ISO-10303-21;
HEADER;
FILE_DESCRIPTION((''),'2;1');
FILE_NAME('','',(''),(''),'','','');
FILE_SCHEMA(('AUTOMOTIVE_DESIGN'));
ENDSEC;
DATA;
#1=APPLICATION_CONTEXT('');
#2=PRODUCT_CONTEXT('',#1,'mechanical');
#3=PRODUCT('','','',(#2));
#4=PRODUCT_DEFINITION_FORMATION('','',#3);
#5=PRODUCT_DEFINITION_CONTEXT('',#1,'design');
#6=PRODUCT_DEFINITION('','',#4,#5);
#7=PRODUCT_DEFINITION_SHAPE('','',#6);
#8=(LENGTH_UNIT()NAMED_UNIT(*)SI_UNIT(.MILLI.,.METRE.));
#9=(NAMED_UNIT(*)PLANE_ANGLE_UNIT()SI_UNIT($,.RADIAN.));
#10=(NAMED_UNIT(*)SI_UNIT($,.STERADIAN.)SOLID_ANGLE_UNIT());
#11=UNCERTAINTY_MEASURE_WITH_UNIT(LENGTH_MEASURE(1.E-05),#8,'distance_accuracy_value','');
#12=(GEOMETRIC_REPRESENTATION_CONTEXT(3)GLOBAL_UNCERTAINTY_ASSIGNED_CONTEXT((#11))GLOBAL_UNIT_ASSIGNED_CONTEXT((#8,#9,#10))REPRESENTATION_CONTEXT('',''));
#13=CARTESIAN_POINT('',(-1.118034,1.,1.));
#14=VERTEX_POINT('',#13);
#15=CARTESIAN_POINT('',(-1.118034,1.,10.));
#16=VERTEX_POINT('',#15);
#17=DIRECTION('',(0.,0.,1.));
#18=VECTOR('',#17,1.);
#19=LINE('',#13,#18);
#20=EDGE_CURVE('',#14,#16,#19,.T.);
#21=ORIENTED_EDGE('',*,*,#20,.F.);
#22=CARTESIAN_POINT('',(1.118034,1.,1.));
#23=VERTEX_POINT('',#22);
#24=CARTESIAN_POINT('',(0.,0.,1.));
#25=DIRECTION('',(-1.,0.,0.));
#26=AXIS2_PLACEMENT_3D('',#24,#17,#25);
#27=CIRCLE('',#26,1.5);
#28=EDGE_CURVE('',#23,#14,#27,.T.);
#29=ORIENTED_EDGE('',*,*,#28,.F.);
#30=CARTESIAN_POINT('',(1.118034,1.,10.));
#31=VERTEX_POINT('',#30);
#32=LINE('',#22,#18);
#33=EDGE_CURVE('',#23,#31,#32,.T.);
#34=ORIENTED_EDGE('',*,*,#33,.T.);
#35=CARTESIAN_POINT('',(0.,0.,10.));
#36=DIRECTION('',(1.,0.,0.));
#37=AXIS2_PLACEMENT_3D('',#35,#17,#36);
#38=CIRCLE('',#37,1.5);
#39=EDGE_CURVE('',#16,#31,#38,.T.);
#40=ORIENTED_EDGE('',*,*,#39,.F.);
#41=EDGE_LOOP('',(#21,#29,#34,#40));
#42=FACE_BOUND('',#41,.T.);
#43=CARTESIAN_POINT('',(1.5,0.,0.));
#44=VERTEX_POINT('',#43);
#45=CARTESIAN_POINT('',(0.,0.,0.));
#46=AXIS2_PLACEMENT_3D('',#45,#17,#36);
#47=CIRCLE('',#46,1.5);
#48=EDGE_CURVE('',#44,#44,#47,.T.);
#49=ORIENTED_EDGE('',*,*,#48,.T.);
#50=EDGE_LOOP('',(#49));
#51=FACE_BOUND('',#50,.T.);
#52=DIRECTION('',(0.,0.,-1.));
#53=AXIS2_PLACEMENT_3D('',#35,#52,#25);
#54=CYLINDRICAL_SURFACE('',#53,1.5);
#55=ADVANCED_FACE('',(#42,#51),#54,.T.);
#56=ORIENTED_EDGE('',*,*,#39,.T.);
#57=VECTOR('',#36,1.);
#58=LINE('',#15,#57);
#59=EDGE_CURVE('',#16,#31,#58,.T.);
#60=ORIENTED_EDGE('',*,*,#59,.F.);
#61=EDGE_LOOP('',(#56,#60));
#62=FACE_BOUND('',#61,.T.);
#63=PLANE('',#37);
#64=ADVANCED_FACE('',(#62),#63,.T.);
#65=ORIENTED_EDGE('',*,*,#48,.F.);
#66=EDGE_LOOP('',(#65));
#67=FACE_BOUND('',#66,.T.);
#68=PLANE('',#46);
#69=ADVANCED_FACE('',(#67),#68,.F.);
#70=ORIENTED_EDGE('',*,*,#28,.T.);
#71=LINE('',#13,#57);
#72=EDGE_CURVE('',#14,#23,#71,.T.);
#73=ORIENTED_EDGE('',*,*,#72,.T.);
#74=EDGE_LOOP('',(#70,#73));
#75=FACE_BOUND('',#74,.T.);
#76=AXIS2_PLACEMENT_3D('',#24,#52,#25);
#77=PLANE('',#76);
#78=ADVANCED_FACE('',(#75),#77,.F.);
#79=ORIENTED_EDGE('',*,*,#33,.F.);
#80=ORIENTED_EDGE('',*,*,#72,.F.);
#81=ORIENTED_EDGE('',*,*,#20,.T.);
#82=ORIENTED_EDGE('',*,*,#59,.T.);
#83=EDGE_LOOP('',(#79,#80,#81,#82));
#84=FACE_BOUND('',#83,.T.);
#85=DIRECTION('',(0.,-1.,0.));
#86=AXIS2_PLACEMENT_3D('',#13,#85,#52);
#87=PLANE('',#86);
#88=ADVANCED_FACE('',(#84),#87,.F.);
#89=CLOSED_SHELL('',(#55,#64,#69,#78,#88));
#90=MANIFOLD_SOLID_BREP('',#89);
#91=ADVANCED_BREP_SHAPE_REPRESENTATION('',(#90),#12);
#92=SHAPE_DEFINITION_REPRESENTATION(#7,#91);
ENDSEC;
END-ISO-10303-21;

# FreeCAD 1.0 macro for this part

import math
import FreeCAD as App
import Part
import Sketcher

V = App.Vector

doc = App.newDocument("Part")
body = doc.addObject("PartDesign::Body", "Body")

sketch1 = body.newObject("Sketcher::SketchObject", "Sketch")
sketch1.AttachmentSupport = (doc.getObject("XY_Plane"), [""])
sketch1.MapMode = "FlatFace"
sketch1.addGeometry(Part.Circle(V(0, 0, 0), V(0, 0, 1), 1.5), False)
sketch1.addConstraint([
    Sketcher.Constraint("Coincident", 0, 3, -1, 1),
    Sketcher.Constraint("Diameter", 0, 3.0),
])
pad1 = body.newObject("PartDesign::Pad", "Pad")
pad1.Profile = sketch1
pad1.Length = 10

sketch2 = body.newObject("Sketcher::SketchObject", "Sketch001")
sketch2.AttachmentSupport = (doc.getObject("XY_Plane"), [""])
sketch2.MapMode = "FlatFace"
sketch2.AttachmentOffset = App.Placement(V(0, 0, 10), App.Rotation())
sketch2.addGeometry([
    Part.LineSegment(V(-1.118034, 1, 0), V(1.118034, 1, 0)),
    Part.ArcOfCircle(Part.Circle(V(0, 0, 0), V(0, 0, 1), 1.5), math.radians(41.810315), math.radians(138.189685)),
], False)
sketch2.addConstraint([
    Sketcher.Constraint("Coincident", 0, 1, 1, 2),
    Sketcher.Constraint("Coincident", 1, 1, 0, 2),
    Sketcher.Constraint("Horizontal", 0),
    Sketcher.Constraint("Coincident", 1, 3, -1, 1),
    Sketcher.Constraint("Radius", 1, 1.5),
    Sketcher.Constraint("DistanceY", -1, 1, 0, 1, 1.0),
])
pocket1 = body.newObject("PartDesign::Pocket", "Pocket")
pocket1.Profile = sketch2
pocket1.Length = 9

doc.recompute()
